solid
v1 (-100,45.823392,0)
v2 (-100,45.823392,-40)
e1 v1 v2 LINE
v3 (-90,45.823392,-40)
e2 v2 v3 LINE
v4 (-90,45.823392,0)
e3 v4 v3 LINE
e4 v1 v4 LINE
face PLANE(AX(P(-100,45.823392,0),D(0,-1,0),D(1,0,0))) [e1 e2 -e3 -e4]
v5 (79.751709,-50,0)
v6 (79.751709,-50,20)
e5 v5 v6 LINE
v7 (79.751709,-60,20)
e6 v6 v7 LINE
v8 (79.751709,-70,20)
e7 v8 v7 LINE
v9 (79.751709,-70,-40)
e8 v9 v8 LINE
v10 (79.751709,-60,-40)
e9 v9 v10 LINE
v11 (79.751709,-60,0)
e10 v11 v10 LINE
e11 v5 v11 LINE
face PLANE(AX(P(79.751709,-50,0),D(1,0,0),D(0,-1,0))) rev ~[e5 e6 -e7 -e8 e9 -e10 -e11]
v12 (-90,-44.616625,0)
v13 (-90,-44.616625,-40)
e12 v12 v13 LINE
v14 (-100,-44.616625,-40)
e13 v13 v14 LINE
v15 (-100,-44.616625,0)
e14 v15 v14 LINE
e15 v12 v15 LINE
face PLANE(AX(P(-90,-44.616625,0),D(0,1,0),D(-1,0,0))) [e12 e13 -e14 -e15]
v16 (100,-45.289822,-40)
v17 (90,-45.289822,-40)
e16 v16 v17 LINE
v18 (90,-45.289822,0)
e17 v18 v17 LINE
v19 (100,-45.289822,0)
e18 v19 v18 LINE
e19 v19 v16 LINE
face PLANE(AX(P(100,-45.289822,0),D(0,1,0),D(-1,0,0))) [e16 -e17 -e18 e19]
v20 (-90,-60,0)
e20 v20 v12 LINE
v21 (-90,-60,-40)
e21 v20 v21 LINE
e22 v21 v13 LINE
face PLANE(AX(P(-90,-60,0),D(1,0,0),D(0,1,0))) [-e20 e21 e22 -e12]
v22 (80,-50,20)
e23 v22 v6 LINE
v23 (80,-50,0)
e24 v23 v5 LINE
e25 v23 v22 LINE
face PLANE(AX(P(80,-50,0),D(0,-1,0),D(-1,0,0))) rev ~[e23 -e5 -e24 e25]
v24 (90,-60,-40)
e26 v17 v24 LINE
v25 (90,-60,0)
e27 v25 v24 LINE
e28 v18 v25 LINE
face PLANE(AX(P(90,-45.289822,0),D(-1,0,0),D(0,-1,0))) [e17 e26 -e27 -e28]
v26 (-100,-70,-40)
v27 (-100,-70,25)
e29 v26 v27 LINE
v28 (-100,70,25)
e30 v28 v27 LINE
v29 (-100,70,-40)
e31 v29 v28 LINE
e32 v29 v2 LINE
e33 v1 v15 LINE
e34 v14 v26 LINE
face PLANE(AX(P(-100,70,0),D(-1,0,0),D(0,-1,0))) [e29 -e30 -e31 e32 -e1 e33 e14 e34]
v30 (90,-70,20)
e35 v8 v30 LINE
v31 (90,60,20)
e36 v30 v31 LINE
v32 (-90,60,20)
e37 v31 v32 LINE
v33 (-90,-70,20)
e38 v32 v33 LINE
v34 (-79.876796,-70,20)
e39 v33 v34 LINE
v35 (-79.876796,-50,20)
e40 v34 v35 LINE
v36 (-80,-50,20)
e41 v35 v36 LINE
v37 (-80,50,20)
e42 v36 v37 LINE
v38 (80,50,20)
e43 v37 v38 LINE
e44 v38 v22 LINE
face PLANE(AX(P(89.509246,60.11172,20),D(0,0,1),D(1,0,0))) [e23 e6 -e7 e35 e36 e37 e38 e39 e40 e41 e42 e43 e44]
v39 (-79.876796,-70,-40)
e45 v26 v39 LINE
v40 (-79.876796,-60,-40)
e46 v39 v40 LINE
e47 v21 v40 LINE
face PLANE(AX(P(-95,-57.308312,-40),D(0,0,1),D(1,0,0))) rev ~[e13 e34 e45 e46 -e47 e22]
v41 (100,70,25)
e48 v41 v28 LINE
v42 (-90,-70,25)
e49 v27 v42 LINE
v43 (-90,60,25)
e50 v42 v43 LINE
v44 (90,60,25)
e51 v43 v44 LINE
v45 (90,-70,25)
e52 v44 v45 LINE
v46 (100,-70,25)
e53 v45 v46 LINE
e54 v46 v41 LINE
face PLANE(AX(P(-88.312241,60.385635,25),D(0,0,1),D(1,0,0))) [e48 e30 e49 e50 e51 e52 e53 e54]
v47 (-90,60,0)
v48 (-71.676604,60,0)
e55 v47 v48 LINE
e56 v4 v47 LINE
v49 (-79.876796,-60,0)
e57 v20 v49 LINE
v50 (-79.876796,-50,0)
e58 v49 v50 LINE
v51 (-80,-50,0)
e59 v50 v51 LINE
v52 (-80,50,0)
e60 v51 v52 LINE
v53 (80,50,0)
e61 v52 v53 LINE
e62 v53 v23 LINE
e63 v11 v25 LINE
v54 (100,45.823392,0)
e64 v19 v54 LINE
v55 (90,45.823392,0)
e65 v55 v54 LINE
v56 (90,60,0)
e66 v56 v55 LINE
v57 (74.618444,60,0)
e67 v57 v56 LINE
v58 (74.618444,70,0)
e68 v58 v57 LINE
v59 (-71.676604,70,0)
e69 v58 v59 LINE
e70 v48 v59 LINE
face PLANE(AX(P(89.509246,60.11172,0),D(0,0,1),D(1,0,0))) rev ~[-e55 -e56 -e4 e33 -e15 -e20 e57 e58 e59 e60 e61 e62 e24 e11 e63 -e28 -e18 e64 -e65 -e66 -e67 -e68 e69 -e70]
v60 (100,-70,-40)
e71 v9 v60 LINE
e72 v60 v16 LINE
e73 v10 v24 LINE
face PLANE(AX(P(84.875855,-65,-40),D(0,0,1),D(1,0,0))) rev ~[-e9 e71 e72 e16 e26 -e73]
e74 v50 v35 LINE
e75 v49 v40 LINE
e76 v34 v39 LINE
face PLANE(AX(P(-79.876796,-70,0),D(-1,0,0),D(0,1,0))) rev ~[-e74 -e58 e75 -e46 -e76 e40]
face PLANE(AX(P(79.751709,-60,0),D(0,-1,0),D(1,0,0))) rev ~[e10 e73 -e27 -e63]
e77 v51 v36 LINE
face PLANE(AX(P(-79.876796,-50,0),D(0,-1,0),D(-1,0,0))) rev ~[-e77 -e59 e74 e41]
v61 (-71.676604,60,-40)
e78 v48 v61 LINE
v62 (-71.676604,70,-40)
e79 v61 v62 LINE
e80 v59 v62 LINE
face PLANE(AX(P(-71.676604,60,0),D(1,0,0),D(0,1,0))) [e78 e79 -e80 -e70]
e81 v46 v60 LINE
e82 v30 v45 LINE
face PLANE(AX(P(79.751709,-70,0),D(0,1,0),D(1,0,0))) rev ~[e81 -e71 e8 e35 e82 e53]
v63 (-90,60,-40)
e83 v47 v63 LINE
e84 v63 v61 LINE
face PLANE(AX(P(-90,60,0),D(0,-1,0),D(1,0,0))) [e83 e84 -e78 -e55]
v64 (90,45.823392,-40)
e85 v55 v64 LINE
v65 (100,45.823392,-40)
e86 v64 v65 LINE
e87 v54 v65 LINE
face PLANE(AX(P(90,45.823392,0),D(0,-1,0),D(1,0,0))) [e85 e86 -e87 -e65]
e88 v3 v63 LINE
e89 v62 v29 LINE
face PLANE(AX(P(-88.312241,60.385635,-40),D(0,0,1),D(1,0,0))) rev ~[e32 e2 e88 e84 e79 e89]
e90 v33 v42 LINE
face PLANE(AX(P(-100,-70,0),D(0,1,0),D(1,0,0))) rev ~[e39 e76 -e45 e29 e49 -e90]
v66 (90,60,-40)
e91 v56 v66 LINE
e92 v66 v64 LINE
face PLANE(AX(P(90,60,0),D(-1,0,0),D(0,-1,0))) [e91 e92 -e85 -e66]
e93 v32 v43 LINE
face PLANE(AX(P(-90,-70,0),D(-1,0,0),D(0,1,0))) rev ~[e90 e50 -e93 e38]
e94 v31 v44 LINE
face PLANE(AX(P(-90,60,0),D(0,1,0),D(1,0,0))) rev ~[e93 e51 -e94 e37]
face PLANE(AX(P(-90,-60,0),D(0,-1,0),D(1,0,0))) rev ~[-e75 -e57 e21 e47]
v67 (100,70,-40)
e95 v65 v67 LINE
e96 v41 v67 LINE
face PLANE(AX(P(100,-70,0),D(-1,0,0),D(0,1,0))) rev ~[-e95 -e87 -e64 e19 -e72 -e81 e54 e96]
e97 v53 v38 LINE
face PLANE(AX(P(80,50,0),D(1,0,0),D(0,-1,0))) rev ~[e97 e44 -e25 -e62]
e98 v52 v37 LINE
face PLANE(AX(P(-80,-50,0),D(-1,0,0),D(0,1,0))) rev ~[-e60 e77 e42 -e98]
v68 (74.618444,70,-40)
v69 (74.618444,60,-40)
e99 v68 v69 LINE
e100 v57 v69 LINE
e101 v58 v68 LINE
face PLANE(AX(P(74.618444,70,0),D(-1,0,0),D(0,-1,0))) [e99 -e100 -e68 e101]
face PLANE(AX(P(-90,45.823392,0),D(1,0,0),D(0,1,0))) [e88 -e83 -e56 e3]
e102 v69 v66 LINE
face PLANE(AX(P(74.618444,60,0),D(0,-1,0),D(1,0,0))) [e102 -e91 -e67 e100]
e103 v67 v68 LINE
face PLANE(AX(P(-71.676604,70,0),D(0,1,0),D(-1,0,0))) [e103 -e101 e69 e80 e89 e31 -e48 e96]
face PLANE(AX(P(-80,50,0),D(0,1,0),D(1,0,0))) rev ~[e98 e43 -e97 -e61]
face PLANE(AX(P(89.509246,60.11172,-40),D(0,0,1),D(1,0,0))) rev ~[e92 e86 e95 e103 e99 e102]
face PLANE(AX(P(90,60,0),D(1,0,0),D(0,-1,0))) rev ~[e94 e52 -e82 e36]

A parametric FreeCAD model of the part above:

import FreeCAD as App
import Part
import Sketcher
from FreeCAD import Vector


def add_polygon(sketch, points):
    """Adds a closed chain of lines whose ends are joined by coincident constraints."""
    first, n = sketch.GeometryCount, len(points)
    for a, b in zip(points, points[1:] + points[:1]):
        sketch.addGeometry(Part.LineSegment(App.Vector(*a, 0), App.Vector(*b, 0)), False)
    for i in range(n):
        sketch.addConstraint(Sketcher.Constraint("Coincident", first + i, 2, first + (i + 1) % n, 1))

doc = App.newDocument("Part")
body = doc.addObject("PartDesign::Body", "Body")

# Sketch on XY plane
sketch1 = body.newObject("Sketcher::SketchObject", "Sketch")
sketch1.AttachmentSupport = (doc.getObject("XY_Plane"), [""])
sketch1.MapMode = "FlatFace"
add_polygon(sketch1, [(100, 70), (-100, 70), (-100, -70), (-79.876796, -70), (-79.876796, -50), (-80, -50), (-80, 50), (80, 50), (80, -50), (79.751709, -50), (79.751709, -60), (79.751709, -70), (100, -70)])  # lines 0-12
sketch1.addConstraint([
    Sketcher.Constraint("Horizontal", 0),
    Sketcher.Constraint("Vertical", 1),
    Sketcher.Constraint("Horizontal", 2),
    Sketcher.Constraint("Vertical", 3),
    Sketcher.Constraint("Horizontal", 4),
    Sketcher.Constraint("Vertical", 5),
    Sketcher.Constraint("Horizontal", 6),
    Sketcher.Constraint("Vertical", 7),
    Sketcher.Constraint("Horizontal", 8),
    Sketcher.Constraint("Vertical", 9),
    Sketcher.Constraint("Vertical", 10),
    Sketcher.Constraint("Horizontal", 11),
    Sketcher.Constraint("Vertical", 12),
    Sketcher.Constraint("Symmetric", 4, 2, 6, 2, -1, 1),
    Sketcher.Constraint("Symmetric", 0, 2, 11, 2, -1, 1),
    Sketcher.Constraint("Horizontal", 4, 2, 7, 2),
    Sketcher.Constraint("Horizontal", 2, 2, 10, 2),
    Sketcher.Constraint("Equal", 9, 10),
    Sketcher.Constraint("DistanceX", 0, 2, 0, 1, 200.0),
    Sketcher.Constraint("DistanceX", 6, 1, 6, 2, 160.0),
    Sketcher.Constraint("DistanceY", 1, 2, 1, 1, 140.0),
    Sketcher.Constraint("DistanceY", 3, 1, 3, 2, 20.0),
    Sketcher.Constraint("DistanceX", 8, 2, 8, 1, 0.248291),
    Sketcher.Constraint("DistanceX", 2, 1, 2, 2, 20.123204),
])
pad1 = body.newObject("PartDesign::Pad", "Pad")
pad1.Profile = sketch1
pad1.Length = 20

# Sketch on XY plane
sketch2 = body.newObject("Sketcher::SketchObject", "Sketch001")
sketch2.AttachmentSupport = (doc.getObject("XY_Plane"), [""])
sketch2.MapMode = "FlatFace"
add_polygon(sketch2, [(-100, 70), (-100, -70), (-90, -70), (-90, 60), (90, 60), (90, -70), (100, -70), (100, 70)])  # lines 0-7
sketch2.addConstraint([
    Sketcher.Constraint("Vertical", 0),
    Sketcher.Constraint("Horizontal", 1),
    Sketcher.Constraint("Vertical", 2),
    Sketcher.Constraint("Horizontal", 3),
    Sketcher.Constraint("Vertical", 4),
    Sketcher.Constraint("Horizontal", 5),
    Sketcher.Constraint("Vertical", 6),
    Sketcher.Constraint("Horizontal", 7),
    Sketcher.Constraint("Symmetric", 0, 2, 6, 2, -1, 1),
    Sketcher.Constraint("Symmetric", 1, 2, 4, 2, -2),
    Sketcher.Constraint("DistanceX", 1, 1, 1, 2, 10.0),
    Sketcher.Constraint("DistanceX", 3, 1, 3, 2, 180.0),
    Sketcher.Constraint("DistanceY", 0, 2, 0, 1, 140.0),
    Sketcher.Constraint("DistanceY", 2, 1, 2, 2, 130.0),
])
pad2 = body.newObject("PartDesign::Pad", "Pad001")
pad2.Profile = sketch2
pad2.Length = 25

# Sketch on XY plane
sketch3 = body.newObject("Sketcher::SketchObject", "Sketch002")
sketch3.AttachmentSupport = (doc.getObject("XY_Plane"), [""])
sketch3.MapMode = "FlatFace"
add_polygon(sketch3, [(-71.676604, 60), (-71.676604, 70), (-100, 70), (-100, 45.823392), (-90, 45.823392), (-90, 60)])  # lines 0-5
add_polygon(sketch3, [(-100, -70), (-79.876796, -70), (-79.876796, -60), (-90, -60), (-90, -44.616625), (-100, -44.616625)])  # lines 6-11
add_polygon(sketch3, [(79.751709, -60), (79.751709, -70), (100, -70), (100, -45.289822), (90, -45.289822), (90, -60)])  # lines 12-17
add_polygon(sketch3, [(90, 45.823392), (100, 45.823392), (100, 70), (74.618444, 70), (74.618444, 60), (90, 60)])  # lines 18-23
sketch3.addConstraint([
    Sketcher.Constraint("Vertical", 0),
    Sketcher.Constraint("Horizontal", 1),
    Sketcher.Constraint("Vertical", 2),
    Sketcher.Constraint("Horizontal", 3),
    Sketcher.Constraint("Vertical", 4),
    Sketcher.Constraint("Horizontal", 5),
    Sketcher.Constraint("Horizontal", 6),
    Sketcher.Constraint("Vertical", 7),
    Sketcher.Constraint("Horizontal", 8),
    Sketcher.Constraint("Vertical", 9),
    Sketcher.Constraint("Horizontal", 10),
    Sketcher.Constraint("Vertical", 11),
    Sketcher.Constraint("Vertical", 12),
    Sketcher.Constraint("Horizontal", 13),
    Sketcher.Constraint("Vertical", 14),
    Sketcher.Constraint("Horizontal", 15),
    Sketcher.Constraint("Vertical", 16),
    Sketcher.Constraint("Horizontal", 17),
    Sketcher.Constraint("Horizontal", 18),
    Sketcher.Constraint("Vertical", 19),
    Sketcher.Constraint("Horizontal", 20),
    Sketcher.Constraint("Vertical", 21),
    Sketcher.Constraint("Horizontal", 22),
    Sketcher.Constraint("Vertical", 23),
    Sketcher.Constraint("Symmetric", 1, 2, 13, 2, -1, 1),
    Sketcher.Constraint("Symmetric", 4, 2, 16, 2, -1, 1),
    Sketcher.Constraint("Symmetric", 11, 2, 19, 2, -1, 1),
    Sketcher.Constraint("Symmetric", 8, 2, 22, 2, -1, 1),
    Sketcher.Constraint("Symmetric", 11, 2, 13, 2, -2),
    Sketcher.Constraint("Symmetric", 8, 2, 16, 2, -2),
    Sketcher.Constraint("Horizontal", 3, 2, 18, 2),
    Sketcher.Constraint("Equal", 18, 0),
    Sketcher.Constraint("DistanceX", 3, 1, 3, 2, 10.0),
    Sketcher.Constraint("DistanceY", -1, 1, 0, 2, 70.0),
    Sketcher.Constraint("DistanceX", 1, 2, -1, 1, 100.0),
    Sketcher.Constraint("DistanceX", 13, 1, 13, 2, 20.248291),
    Sketcher.Constraint("DistanceY", 2, 2, 2, 1, 24.176608),
    Sketcher.Constraint("DistanceY", 14, 1, 14, 2, 24.710178),
    Sketcher.Constraint("DistanceX", 1, 2, 1, 1, 28.323396),
    Sketcher.Constraint("DistanceX", 6, 1, 6, 2, 20.123204),
    Sketcher.Constraint("DistanceX", 20, 2, 20, 1, 25.381556),
    Sketcher.Constraint("DistanceY", 9, 1, 9, 2, 15.383375),
])
pad3 = body.newObject("PartDesign::Pad", "Pad002")
pad3.Profile = sketch3
pad3.Length = 40
pad3.Reversed = True

doc.recompute()
